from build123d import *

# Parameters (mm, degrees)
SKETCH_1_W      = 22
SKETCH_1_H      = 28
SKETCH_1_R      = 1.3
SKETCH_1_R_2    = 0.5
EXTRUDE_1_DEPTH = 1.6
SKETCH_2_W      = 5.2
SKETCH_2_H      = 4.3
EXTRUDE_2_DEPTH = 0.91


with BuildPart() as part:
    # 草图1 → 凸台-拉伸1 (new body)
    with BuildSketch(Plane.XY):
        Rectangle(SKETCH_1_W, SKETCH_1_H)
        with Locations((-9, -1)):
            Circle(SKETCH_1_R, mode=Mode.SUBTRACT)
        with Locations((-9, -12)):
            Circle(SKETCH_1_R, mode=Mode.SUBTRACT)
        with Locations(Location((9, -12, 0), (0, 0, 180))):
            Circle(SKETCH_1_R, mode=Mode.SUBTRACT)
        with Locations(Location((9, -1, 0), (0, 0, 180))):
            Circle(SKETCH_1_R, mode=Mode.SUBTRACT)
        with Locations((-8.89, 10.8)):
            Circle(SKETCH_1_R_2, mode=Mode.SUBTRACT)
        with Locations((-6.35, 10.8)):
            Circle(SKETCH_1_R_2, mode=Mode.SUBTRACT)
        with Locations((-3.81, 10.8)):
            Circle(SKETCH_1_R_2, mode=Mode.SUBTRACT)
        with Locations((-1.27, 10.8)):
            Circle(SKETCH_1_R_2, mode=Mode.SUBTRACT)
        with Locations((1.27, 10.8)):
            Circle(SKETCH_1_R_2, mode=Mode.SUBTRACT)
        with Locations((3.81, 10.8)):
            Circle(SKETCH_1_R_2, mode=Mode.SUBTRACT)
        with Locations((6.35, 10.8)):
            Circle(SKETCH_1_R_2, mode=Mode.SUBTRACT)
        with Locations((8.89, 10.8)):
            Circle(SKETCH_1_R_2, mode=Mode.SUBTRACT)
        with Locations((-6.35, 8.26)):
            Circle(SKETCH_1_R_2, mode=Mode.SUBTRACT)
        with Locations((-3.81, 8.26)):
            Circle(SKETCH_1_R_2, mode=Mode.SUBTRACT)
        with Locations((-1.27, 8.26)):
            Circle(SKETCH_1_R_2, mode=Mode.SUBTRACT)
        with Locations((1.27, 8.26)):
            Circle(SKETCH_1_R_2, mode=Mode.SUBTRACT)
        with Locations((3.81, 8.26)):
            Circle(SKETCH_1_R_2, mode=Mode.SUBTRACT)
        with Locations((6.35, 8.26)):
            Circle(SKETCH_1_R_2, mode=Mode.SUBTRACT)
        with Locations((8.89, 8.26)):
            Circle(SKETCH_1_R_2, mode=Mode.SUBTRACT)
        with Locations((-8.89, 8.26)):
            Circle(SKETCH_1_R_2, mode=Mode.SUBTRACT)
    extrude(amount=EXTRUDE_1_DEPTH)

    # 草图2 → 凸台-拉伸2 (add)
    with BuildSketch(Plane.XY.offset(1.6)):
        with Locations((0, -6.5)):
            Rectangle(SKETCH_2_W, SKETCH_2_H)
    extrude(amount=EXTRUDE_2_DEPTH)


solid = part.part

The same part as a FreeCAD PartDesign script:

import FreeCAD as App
import Part
import Sketcher

V = App.Vector
Q = App.Units.Quantity


def add_polygon(sketch, points):
    """Adds a closed chain of lines whose ends are joined by coincident constraints."""
    first, n = sketch.GeometryCount, len(points)
    for a, b in zip(points, points[1:] + points[:1]):
        sketch.addGeometry(Part.LineSegment(App.Vector(*a, 0), App.Vector(*b, 0)), False)
    for i in range(n):
        sketch.addConstraint(Sketcher.Constraint("Coincident", first + i, 2, first + (i + 1) % n, 1))

doc = App.newDocument("Part")
params = doc.addObject("Spreadsheet::Sheet", "Params")
for row, (alias, value) in enumerate([
    ("sketch1_diameter", "1 mm"),
    ("sketch1_diameter2", "2.6 mm"),
    ("sketch1_width", "22 mm"),
    ("sketch1_height", "28 mm"),
    ("pad1_length", "1.6 mm"),
    ("sketch2_width", "5.2 mm"),
    ("sketch2_height", "4.3 mm"),
    ("pad2_length", "0.91 mm"),
], start=1):
    params.set(f"A{row}", alias)
    params.set(f"B{row}", "=" + value)
    params.setAlias(f"B{row}", alias)

body = doc.addObject("PartDesign::Body", "Body")

sketch1 = body.newObject("Sketcher::SketchObject", "Sketch")
sketch1.AttachmentSupport = (doc.getObject("XY_Plane"), [""])
sketch1.MapMode = "FlatFace"
add_polygon(sketch1, [(-11, 14), (-11, -14), (11, -14), (11, 14)])
sketch1.addGeometry(Part.Circle(V(-9, -12, 0), V(0, 0, 1), 1.3), False)
sketch1.addGeometry(Part.Circle(V(9, -12, 0), V(0, 0, 1), 1.3), False)
sketch1.addGeometry(Part.Circle(V(-9, -1, 0), V(0, 0, 1), 1.3), False)
sketch1.addGeometry(Part.Circle(V(-8.9, 8.3, 0), V(0, 0, 1), 0.5), False)
sketch1.addGeometry(Part.Circle(V(-8.9, 10.8, 0), V(0, 0, 1), 0.5), False)
sketch1.addGeometry(Part.Circle(V(-6.3, 8.3, 0), V(0, 0, 1), 0.5), False)
sketch1.addGeometry(Part.Circle(V(-6.3, 10.8, 0), V(0, 0, 1), 0.5), False)
sketch1.addGeometry(Part.Circle(V(-3.8, 8.3, 0), V(0, 0, 1), 0.5), False)
sketch1.addGeometry(Part.Circle(V(-3.8, 10.8, 0), V(0, 0, 1), 0.5), False)
sketch1.addGeometry(Part.Circle(V(-1.3, 8.3, 0), V(0, 0, 1), 0.5), False)
sketch1.addGeometry(Part.Circle(V(-1.3, 10.8, 0), V(0, 0, 1), 0.5), False)
sketch1.addGeometry(Part.Circle(V(9, -1, 0), V(0, 0, 1), 1.3), False)
sketch1.addGeometry(Part.Circle(V(1.3, 8.3, 0), V(0, 0, 1), 0.5), False)
sketch1.addGeometry(Part.Circle(V(1.3, 10.8, 0), V(0, 0, 1), 0.5), False)
sketch1.addGeometry(Part.Circle(V(3.8, 8.3, 0), V(0, 0, 1), 0.5), False)
sketch1.addGeometry(Part.Circle(V(3.8, 10.8, 0), V(0, 0, 1), 0.5), False)
sketch1.addGeometry(Part.Circle(V(6.3, 8.3, 0), V(0, 0, 1), 0.5), False)
sketch1.addGeometry(Part.Circle(V(6.3, 10.8, 0), V(0, 0, 1), 0.5), False)
sketch1.addGeometry(Part.Circle(V(8.9, 8.3, 0), V(0, 0, 1), 0.5), False)
sketch1.addGeometry(Part.Circle(V(8.9, 10.8, 0), V(0, 0, 1), 0.5), False)
sketch1.addConstraint(Sketcher.Constraint("Vertical", 0))
sketch1.addConstraint(Sketcher.Constraint("Horizontal", 1))
sketch1.addConstraint(Sketcher.Constraint("Vertical", 2))
sketch1.addConstraint(Sketcher.Constraint("Horizontal", 3))
sketch1.addConstraint(Sketcher.Constraint("Equal", 4, 5))
sketch1.addConstraint(Sketcher.Constraint("Equal", 5, 6))
sketch1.addConstraint(Sketcher.Constraint("Equal", 7, 8))
sketch1.addConstraint(Sketcher.Constraint("Equal", 8, 9))
sketch1.addConstraint(Sketcher.Constraint("Equal", 9, 10))
sketch1.addConstraint(Sketcher.Constraint("Equal", 10, 11))
sketch1.addConstraint(Sketcher.Constraint("Equal", 11, 12))
sketch1.addConstraint(Sketcher.Constraint("Equal", 12, 13))
sketch1.addConstraint(Sketcher.Constraint("Equal", 13, 14))
sketch1.addConstraint(Sketcher.Constraint("Equal", 6, 15))
sketch1.addConstraint(Sketcher.Constraint("Equal", 14, 16))
sketch1.addConstraint(Sketcher.Constraint("Equal", 16, 17))
sketch1.addConstraint(Sketcher.Constraint("Equal", 17, 18))
sketch1.addConstraint(Sketcher.Constraint("Equal", 18, 19))
sketch1.addConstraint(Sketcher.Constraint("Equal", 19, 20))
sketch1.addConstraint(Sketcher.Constraint("Equal", 20, 21))
sketch1.addConstraint(Sketcher.Constraint("Equal", 21, 22))
sketch1.addConstraint(Sketcher.Constraint("Equal", 22, 23))
sketch1.addConstraint(Sketcher.Constraint("Symmetric", 0, 2, 2, 2, -1, 1))
sketch1.addConstraint(Sketcher.Constraint("Symmetric", 4, 3, 5, 3, -2))
sketch1.addConstraint(Sketcher.Constraint("Symmetric", 6, 3, 15, 3, -2))
sketch1.addConstraint(Sketcher.Constraint("Symmetric", 13, 3, 16, 3, -2))
sketch1.addConstraint(Sketcher.Constraint("Symmetric", 14, 3, 17, 3, -2))
sketch1.addConstraint(Sketcher.Constraint("Symmetric", 11, 3, 18, 3, -2))
sketch1.addConstraint(Sketcher.Constraint("Symmetric", 12, 3, 19, 3, -2))
sketch1.addConstraint(Sketcher.Constraint("Symmetric", 9, 3, 20, 3, -2))
sketch1.addConstraint(Sketcher.Constraint("Symmetric", 10, 3, 21, 3, -2))
sketch1.addConstraint(Sketcher.Constraint("Symmetric", 7, 3, 22, 3, -2))
sketch1.addConstraint(Sketcher.Constraint("Symmetric", 8, 3, 23, 3, -2))
sketch1.addConstraint(Sketcher.Constraint("Horizontal", 7, 3, 9, 3))
sketch1.addConstraint(Sketcher.Constraint("Horizontal", 8, 3, 10, 3))
sketch1.addConstraint(Sketcher.Constraint("Horizontal", 9, 3, 11, 3))
sketch1.addConstraint(Sketcher.Constraint("Horizontal", 10, 3, 12, 3))
sketch1.addConstraint(Sketcher.Constraint("Horizontal", 11, 3, 13, 3))
sketch1.addConstraint(Sketcher.Constraint("Horizontal", 12, 3, 14, 3))
sketch1.addConstraint(Sketcher.Constraint("Vertical", 4, 3, 6, 3))
sketch1.addConstraint(Sketcher.Constraint("Vertical", 7, 3, 8, 3))
sketch1.addConstraint(Sketcher.Constraint("Vertical", 9, 3, 10, 3))
sketch1.addConstraint(Sketcher.Constraint("Vertical", 11, 3, 12, 3))
sketch1.addConstraint(Sketcher.Constraint("Vertical", 13, 3, 14, 3))
sketch1.addConstraint(Sketcher.Constraint("Diameter", 7, Q("1 mm")))
sketch1.addConstraint(Sketcher.Constraint("Diameter", 4, Q("2.6 mm")))
sketch1.addConstraint(Sketcher.Constraint("DistanceX", 1, 1, 1, 2, Q("22 mm")))
sketch1.addConstraint(Sketcher.Constraint("DistanceY", 0, 2, 0, 1, Q("28 mm")))
sketch1.addConstraint(Sketcher.Constraint("DistanceX", 4, 3, -1, 1, Q("9 mm")))
sketch1.addConstraint(Sketcher.Constraint("DistanceY", 4, 3, -1, 1, Q("12 mm")))
sketch1.addConstraint(Sketcher.Constraint("DistanceY", 6, 3, -1, 1, Q("1 mm")))
sketch1.addConstraint(Sketcher.Constraint("DistanceY", -1, 1, 8, 3, Q("10.8 mm")))
sketch1.addConstraint(Sketcher.Constraint("DistanceX", 7, 3, -1, 1, Q("8.89 mm")))
sketch1.addConstraint(Sketcher.Constraint("DistanceY", -1, 1, 7, 3, Q("8.26 mm")))
sketch1.addConstraint(Sketcher.Constraint("DistanceX", 9, 3, -1, 1, Q("6.35 mm")))
sketch1.addConstraint(Sketcher.Constraint("DistanceX", 11, 3, -1, 1, Q("3.81 mm")))
sketch1.addConstraint(Sketcher.Constraint("DistanceX", 13, 3, -1, 1, Q("1.27 mm")))
sketch1.setExpression("Constraints[48]", "Params.sketch1_diameter")
sketch1.setExpression("Constraints[49]", "Params.sketch1_diameter2")
sketch1.setExpression("Constraints[50]", "Params.sketch1_width")
sketch1.setExpression("Constraints[51]", "Params.sketch1_height")
pad1 = body.newObject("PartDesign::Pad", "Pad")
pad1.Profile = sketch1
pad1.setExpression("Length", "Params.pad1_length")

sketch2 = body.newObject("Sketcher::SketchObject", "Sketch001")
sketch2.AttachmentSupport = (doc.getObject("XY_Plane"), [""])
sketch2.MapMode = "FlatFace"
sketch2.AttachmentOffset = App.Placement(V(0, 0, 1.6), App.Rotation())
add_polygon(sketch2, [(-2.6, -4.3), (-2.6, -8.7), (2.6, -8.7), (2.6, -4.3)])
sketch2.addConstraint(Sketcher.Constraint("Vertical", 0))
sketch2.addConstraint(Sketcher.Constraint("Horizontal", 1))
sketch2.addConstraint(Sketcher.Constraint("Vertical", 2))
sketch2.addConstraint(Sketcher.Constraint("Horizontal", 3))
sketch2.addConstraint(Sketcher.Constraint("DistanceX", 1, 1, 1, 2, Q("5.2 mm")))
sketch2.addConstraint(Sketcher.Constraint("DistanceY", 0, 2, 0, 1, Q("4.3 mm")))
sketch2.addConstraint(Sketcher.Constraint("DistanceX", 0, 2, -1, 1, Q("2.6 mm")))
sketch2.addConstraint(Sketcher.Constraint("DistanceY", 0, 2, -1, 1, Q("8.65 mm")))
sketch2.setExpression("Constraints[8]", "Params.sketch2_width")
sketch2.setExpression("Constraints[9]", "Params.sketch2_height")
pad2 = body.newObject("PartDesign::Pad", "Pad001")
pad2.Profile = sketch2
pad2.setExpression("Length", "Params.pad2_length")

doc.recompute()
